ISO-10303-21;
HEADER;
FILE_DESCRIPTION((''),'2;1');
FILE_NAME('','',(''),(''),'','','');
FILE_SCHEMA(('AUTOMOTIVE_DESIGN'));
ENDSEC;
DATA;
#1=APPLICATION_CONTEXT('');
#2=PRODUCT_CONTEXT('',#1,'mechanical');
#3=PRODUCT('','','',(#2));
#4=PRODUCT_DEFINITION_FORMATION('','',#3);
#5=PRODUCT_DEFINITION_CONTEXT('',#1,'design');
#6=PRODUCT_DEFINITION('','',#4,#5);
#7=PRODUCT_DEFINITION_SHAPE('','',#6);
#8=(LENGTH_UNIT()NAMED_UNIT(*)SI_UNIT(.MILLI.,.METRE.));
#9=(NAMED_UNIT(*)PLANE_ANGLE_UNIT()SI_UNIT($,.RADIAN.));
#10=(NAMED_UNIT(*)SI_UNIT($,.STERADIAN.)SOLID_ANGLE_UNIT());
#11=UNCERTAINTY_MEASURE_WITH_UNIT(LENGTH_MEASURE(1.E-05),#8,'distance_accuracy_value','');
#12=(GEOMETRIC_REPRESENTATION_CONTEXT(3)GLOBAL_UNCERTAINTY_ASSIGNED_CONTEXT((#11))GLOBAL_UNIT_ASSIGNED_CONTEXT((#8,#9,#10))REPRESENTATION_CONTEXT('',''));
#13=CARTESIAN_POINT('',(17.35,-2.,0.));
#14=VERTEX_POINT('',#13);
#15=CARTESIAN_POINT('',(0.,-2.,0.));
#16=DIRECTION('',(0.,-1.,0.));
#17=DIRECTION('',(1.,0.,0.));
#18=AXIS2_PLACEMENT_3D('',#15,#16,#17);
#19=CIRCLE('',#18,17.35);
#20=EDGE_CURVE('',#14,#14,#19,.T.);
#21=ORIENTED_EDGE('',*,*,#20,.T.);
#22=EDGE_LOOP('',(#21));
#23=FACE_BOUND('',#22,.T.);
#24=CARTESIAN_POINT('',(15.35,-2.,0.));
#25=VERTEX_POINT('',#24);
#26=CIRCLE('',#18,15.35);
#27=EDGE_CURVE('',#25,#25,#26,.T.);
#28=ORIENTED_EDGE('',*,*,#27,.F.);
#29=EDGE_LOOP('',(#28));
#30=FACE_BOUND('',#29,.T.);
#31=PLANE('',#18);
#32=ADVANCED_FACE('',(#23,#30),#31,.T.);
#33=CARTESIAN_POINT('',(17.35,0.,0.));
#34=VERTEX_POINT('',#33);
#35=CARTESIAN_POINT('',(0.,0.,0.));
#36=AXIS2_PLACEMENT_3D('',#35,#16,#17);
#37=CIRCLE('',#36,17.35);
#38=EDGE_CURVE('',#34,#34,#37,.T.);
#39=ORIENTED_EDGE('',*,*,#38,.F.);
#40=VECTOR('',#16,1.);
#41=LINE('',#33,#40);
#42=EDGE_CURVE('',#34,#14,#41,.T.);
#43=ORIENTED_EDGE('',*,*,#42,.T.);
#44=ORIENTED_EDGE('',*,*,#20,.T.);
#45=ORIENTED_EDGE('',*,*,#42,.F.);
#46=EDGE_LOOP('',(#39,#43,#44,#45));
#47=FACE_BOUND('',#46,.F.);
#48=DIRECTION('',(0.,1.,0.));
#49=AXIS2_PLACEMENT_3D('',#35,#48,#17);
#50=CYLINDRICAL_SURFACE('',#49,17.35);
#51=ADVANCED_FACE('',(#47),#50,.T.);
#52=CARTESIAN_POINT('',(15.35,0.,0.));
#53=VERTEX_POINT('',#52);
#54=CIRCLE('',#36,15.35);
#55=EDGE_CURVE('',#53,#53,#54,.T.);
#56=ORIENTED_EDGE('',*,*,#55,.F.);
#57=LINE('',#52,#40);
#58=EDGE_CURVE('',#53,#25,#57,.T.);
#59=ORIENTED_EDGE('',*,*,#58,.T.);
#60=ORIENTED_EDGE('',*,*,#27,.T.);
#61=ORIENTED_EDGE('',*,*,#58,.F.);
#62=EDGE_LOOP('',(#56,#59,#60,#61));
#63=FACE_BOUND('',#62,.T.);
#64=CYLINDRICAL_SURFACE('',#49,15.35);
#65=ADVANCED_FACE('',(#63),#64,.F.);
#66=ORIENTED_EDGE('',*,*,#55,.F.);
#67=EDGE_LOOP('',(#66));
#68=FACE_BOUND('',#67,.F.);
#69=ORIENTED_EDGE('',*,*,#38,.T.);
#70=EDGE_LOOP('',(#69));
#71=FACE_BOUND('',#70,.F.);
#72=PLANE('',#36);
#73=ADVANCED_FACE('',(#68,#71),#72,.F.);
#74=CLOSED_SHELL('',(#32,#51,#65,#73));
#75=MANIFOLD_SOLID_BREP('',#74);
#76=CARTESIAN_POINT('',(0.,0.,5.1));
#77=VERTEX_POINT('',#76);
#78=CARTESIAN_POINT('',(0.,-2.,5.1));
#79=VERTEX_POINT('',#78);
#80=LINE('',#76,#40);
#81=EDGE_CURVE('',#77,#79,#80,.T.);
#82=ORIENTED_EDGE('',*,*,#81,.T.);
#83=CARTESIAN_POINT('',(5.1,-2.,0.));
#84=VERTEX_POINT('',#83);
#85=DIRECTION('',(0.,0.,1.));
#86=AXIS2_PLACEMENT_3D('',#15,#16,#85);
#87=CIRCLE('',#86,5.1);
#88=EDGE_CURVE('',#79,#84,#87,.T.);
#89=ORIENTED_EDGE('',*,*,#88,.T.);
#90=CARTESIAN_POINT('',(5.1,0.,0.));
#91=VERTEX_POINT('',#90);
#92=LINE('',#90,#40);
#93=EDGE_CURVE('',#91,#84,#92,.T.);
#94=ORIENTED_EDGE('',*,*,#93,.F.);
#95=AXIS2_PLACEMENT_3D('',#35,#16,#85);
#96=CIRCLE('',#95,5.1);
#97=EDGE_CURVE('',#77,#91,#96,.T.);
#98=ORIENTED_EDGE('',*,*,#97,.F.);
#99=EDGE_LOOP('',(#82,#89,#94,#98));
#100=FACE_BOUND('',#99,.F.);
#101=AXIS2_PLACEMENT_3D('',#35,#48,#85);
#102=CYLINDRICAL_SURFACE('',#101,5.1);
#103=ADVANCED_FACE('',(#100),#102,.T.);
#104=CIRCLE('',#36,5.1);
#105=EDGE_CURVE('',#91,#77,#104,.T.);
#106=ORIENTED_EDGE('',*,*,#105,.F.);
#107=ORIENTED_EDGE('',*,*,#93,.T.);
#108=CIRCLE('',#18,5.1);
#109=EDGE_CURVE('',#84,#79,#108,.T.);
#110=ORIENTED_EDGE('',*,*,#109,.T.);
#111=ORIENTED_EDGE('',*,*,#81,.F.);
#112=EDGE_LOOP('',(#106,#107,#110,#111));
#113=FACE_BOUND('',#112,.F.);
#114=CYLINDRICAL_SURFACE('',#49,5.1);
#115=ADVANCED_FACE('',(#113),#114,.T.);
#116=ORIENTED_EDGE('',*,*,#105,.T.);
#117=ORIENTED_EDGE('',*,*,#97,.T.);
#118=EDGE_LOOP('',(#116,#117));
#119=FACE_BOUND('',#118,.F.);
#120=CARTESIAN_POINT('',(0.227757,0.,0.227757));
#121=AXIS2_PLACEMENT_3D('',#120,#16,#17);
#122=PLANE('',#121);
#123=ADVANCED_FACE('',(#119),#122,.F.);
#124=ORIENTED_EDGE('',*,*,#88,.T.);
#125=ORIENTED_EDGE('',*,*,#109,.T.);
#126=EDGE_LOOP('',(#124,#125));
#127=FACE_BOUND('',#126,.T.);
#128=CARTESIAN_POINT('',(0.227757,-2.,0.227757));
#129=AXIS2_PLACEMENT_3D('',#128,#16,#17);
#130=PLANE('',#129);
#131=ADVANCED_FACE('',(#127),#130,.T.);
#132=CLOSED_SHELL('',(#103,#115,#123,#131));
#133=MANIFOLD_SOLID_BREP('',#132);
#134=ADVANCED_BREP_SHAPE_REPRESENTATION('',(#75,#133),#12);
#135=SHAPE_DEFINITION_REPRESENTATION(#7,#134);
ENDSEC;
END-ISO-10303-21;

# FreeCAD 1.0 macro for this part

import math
import FreeCAD as App
import Part
import Sketcher
from FreeCAD import Vector

doc = App.newDocument("Part")
body = doc.addObject("PartDesign::Body", "Body")

# Sketch on XZ plane
sketch1 = doc.addObject("Sketcher::SketchObject", "Sketch")
body.addObject(sketch1)
sketch1.AttachmentSupport = (doc.XZ_Plane, [""])
sketch1.MapMode = "FlatFace"
sketch1.addGeometry(Part.ArcOfCircle(Part.Circle(Vector(0, 0, 0), Vector(0, 0, 1), 5.1), math.radians(90), math.radians(360)), False)
sketch1.addGeometry(Part.ArcOfCircle(Part.Circle(Vector(0, 0, 0), Vector(0, 0, 1), 5.1), math.radians(0), math.radians(90)), False)
sketch1.addConstraint(Sketcher.Constraint("Tangent", 0, 1, 1, 2))
sketch1.addConstraint(Sketcher.Constraint("Coincident", 1, 1, 0, 2))
sketch1.addConstraint(Sketcher.Constraint("Coincident", 0, 3, -1, 1))
sketch1.addConstraint(Sketcher.Constraint("PointOnObject", 0, 1, -2))
sketch1.addConstraint(Sketcher.Constraint("PointOnObject", 1, 1, -1))
sketch1.addConstraint(Sketcher.Constraint("Radius", 0, 5.1))
pad1 = doc.addObject("PartDesign::Pad", "Pad")
body.addObject(pad1)
pad1.Profile = sketch1
pad1.Length = 2
body2 = doc.addObject("PartDesign::Body", "Body001")

# Sketch on XZ plane
sketch2 = doc.addObject("Sketcher::SketchObject", "Sketch001")
body2.addObject(sketch2)
sketch2.AttachmentSupport = (doc.getObject("XZ_Plane001"), [""])
sketch2.MapMode = "FlatFace"
sketch2.addGeometry(Part.Circle(Vector(0, 0, 0), Vector(0, 0, 1), 17.35), False)
sketch2.addGeometry(Part.Circle(Vector(0, 0, 0), Vector(0, 0, 1), 15.35), False)
sketch2.addConstraint(Sketcher.Constraint("Coincident", 0, 3, -1, 1))
sketch2.addConstraint(Sketcher.Constraint("Coincident", 1, 3, -1, 1))
sketch2.addConstraint(Sketcher.Constraint("Diameter", 0, 34.7))
sketch2.addConstraint(Sketcher.Constraint("Diameter", 1, 30.7))
pad2 = doc.addObject("PartDesign::Pad", "Pad001")
body2.addObject(pad2)
pad2.Profile = sketch2
pad2.Length = 2

doc.recompute()
